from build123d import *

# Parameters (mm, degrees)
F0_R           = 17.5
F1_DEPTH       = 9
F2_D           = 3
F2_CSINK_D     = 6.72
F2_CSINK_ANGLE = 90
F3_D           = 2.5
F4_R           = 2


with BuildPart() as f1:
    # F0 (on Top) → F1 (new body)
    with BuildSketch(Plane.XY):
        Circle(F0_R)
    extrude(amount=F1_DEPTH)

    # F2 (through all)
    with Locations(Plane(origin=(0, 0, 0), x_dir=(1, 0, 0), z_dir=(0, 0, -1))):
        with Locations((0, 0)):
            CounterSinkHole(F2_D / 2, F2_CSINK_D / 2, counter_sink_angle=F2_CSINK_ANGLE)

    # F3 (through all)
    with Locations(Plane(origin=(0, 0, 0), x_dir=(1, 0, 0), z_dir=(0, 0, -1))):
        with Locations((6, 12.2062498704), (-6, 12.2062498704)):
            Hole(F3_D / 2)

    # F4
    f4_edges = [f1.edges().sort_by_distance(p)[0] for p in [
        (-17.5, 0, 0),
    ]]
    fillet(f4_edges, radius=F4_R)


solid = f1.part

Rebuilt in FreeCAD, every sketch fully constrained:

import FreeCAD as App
import Part
import Sketcher


def edges_at(feature, points):
    """Names of the edges that pass closest to the given points."""
    edges = feature.Shape.Edges
    near = lambda p: min(range(len(edges)), key=lambda i: edges[i].distToShape(Part.Vertex(*p))[0])
    return sorted({f"Edge{near(p) + 1}" for p in points})

doc = App.newDocument("Part")
body = doc.addObject("PartDesign::Body", "Body")

# Sketch on XY plane
sketch1 = body.newObject("Sketcher::SketchObject", "Sketch")
sketch1.AttachmentSupport = (doc.getObject("XY_Plane"), [""])
sketch1.MapMode = "FlatFace"
sketch1.addGeometry(Part.Circle(App.Vector(0, 0, 0), App.Vector(0, 0, 1), 18), False)
sketch1.addConstraint([
    Sketcher.Constraint("Coincident", 0, 3, -1, 1),
    Sketcher.Constraint("Diameter", 0, 35.0),
])
pad1 = body.newObject("PartDesign::Pad", "Pad")
pad1.Profile = sketch1
pad1.Length = 9

# Sketch on XY plane
sketch2 = body.newObject("Sketcher::SketchObject", "Sketch001")
sketch2.AttachmentSupport = (doc.getObject("XY_Plane"), [""])
sketch2.MapMode = "FlatFace"
sketch2.addGeometry(Part.Circle(App.Vector(0, 0, 0), App.Vector(0, 0, 1), 1.5), False)
sketch2.addConstraint([
    Sketcher.Constraint("Coincident", 0, 3, -1, 1),
    Sketcher.Constraint("Diameter", 0, 3.0),
])
doc.recompute()
hole = body.newObject("PartDesign::Hole", "Hole")
hole.Profile = sketch2
hole.ThreadType = "None"
hole.Diameter = 3
hole.DepthType = "ThroughAll"
hole.HoleCutType = "Countersink"
hole.HoleCutDiameter = 6.72
hole.HoleCutCountersinkAngle = 90
hole.Reversed = True

# Sketch on XY plane
sketch3 = body.newObject("Sketcher::SketchObject", "Sketch002")
sketch3.AttachmentSupport = (doc.getObject("XY_Plane"), [""])
sketch3.MapMode = "FlatFace"
sketch3.addGeometry([
    Part.Circle(App.Vector(6, -12.2, 0), App.Vector(0, 0, 1), 1.2),
    Part.Circle(App.Vector(-6, -12.2, 0), App.Vector(0, 0, 1), 1.2),
], False)
sketch3.addConstraint([
    Sketcher.Constraint("Equal", 0, 1),
    Sketcher.Constraint("Symmetric", 0, 3, 1, 3, -2),
    Sketcher.Constraint("Diameter", 0, 2.5),
    Sketcher.Constraint("DistanceX", -1, 1, 0, 3, 6.0),
    Sketcher.Constraint("DistanceY", 0, 3, -1, 1, 12.20625),
])
doc.recompute()
hole2 = body.newObject("PartDesign::Hole", "Hole001")
hole2.Profile = sketch3
hole2.ThreadType = "None"
hole2.Diameter = 2.5
hole2.DepthType = "ThroughAll"
hole2.Reversed = True
doc.recompute()

fillet = body.newObject("PartDesign::Fillet", "Fillet")
fillet.Base = (hole2, edges_at(hole2, [(-17.5, 0, 0)]))
fillet.Radius = 2

doc.recompute()
